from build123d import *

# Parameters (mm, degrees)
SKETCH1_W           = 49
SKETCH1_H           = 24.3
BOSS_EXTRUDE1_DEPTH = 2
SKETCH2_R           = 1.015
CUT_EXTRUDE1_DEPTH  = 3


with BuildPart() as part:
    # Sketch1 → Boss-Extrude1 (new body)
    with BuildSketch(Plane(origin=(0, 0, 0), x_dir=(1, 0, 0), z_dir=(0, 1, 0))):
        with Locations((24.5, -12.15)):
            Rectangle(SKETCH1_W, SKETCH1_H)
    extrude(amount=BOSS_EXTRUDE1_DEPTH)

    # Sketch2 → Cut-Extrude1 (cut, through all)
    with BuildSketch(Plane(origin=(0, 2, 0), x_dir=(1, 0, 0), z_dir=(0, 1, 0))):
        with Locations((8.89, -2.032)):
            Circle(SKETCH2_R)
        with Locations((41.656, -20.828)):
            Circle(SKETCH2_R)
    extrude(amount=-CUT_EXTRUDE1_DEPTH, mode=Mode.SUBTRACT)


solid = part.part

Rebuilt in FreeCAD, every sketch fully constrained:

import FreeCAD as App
import Part
import Sketcher
Q = App.Units.Quantity

doc = App.newDocument("Part")
body = doc.addObject("PartDesign::Body", "Body")

# Sketch on XZ plane
sketch1 = doc.addObject("Sketcher::SketchObject", "Sketch")
body.addObject(sketch1)
sketch1.AttachmentSupport = (doc.XZ_Plane, [""])
sketch1.MapMode = "FlatFace"
sketch1.addGeometry([
    Part.LineSegment(App.Vector(0, 0, 0), App.Vector(0, 24, 0)),
    Part.LineSegment(App.Vector(0, 24, 0), App.Vector(49, 24, 0)),
    Part.LineSegment(App.Vector(49, 24, 0), App.Vector(49, 0, 0)),
    Part.LineSegment(App.Vector(49, 0, 0), App.Vector(0, 0, 0)),
], False)
sketch1.addConstraint([
    Sketcher.Constraint("Coincident", 0, 2, 1, 1),
    Sketcher.Constraint("Coincident", 1, 2, 2, 1),
    Sketcher.Constraint("Coincident", 2, 2, 3, 1),
    Sketcher.Constraint("Coincident", 3, 2, 0, 1),
    Sketcher.Constraint("Vertical", 0),
    Sketcher.Constraint("Horizontal", 1),
    Sketcher.Constraint("Vertical", 2),
    Sketcher.Constraint("Horizontal", 3),
    Sketcher.Constraint("Coincident", 3, 2, -1, 1),
    Sketcher.Constraint("DistanceX", 1, 1, 1, 2, Q("49 mm")),
    Sketcher.Constraint("DistanceY", 0, 1, 0, 2, Q("24.3 mm")),
])
pad1 = doc.addObject("PartDesign::Pad", "Pad")
body.addObject(pad1)
pad1.Profile = sketch1
pad1.Length = 2
pad1.Reversed = True

# Sketch on XZ plane
sketch2 = doc.addObject("Sketcher::SketchObject", "Sketch001")
body.addObject(sketch2)
sketch2.AttachmentSupport = (doc.XZ_Plane, [""])
sketch2.MapMode = "FlatFace"
sketch2.AttachmentOffset = App.Placement(App.Vector(0, 0, -2), App.Rotation())
sketch2.addGeometry([
    Part.Circle(App.Vector(8.9, 2, 0), App.Vector(0, 0, 1), 1),
    Part.Circle(App.Vector(41.7, 20.8, 0), App.Vector(0, 0, 1), 1),
], False)
sketch2.addConstraint([
    Sketcher.Constraint("Equal", 0, 1),
    Sketcher.Constraint("Diameter", 0, Q("2.03 mm")),
    Sketcher.Constraint("DistanceX", -1, 1, 0, 3, Q("8.89 mm")),
    Sketcher.Constraint("DistanceY", -1, 1, 0, 3, Q("2.032 mm")),
    Sketcher.Constraint("DistanceX", -1, 1, 1, 3, Q("41.656 mm")),
    Sketcher.Constraint("DistanceY", -1, 1, 1, 3, Q("20.828 mm")),
])
pocket1 = doc.addObject("PartDesign::Pocket", "Pocket")
body.addObject(pocket1)
pocket1.Profile = sketch2
pocket1.Type = "ThroughAll"
pocket1.Reversed = True

doc.recompute()
